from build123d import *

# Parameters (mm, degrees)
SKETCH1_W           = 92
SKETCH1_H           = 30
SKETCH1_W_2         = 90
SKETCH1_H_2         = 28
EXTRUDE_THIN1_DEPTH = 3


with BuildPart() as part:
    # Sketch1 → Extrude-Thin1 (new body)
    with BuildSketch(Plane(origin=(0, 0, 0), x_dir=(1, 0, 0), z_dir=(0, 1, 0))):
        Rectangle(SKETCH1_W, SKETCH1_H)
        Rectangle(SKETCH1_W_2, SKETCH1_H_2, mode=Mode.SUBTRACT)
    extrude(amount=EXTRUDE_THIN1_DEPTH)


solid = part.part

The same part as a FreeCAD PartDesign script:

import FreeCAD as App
import Part
import Sketcher

V = App.Vector
Q = App.Units.Quantity


def add_polygon(sketch, points):
    """Adds a closed chain of lines whose ends are joined by coincident constraints."""
    first, n = sketch.GeometryCount, len(points)
    for a, b in zip(points, points[1:] + points[:1]):
        sketch.addGeometry(Part.LineSegment(App.Vector(*a, 0), App.Vector(*b, 0)), False)
    for i in range(n):
        sketch.addConstraint(Sketcher.Constraint("Coincident", first + i, 2, first + (i + 1) % n, 1))

doc = App.newDocument("Part")
body = doc.addObject("PartDesign::Body", "Body")

sketch1 = doc.addObject("Sketcher::SketchObject", "Sketch")
body.addObject(sketch1)
sketch1.AttachmentSupport = (doc.XZ_Plane, [""])
sketch1.MapMode = "FlatFace"
add_polygon(sketch1, [(-46, -15), (-46, 15), (46, 15), (46, -15)])
add_polygon(sketch1, [(45, 14), (-45, 14), (-45, -14), (45, -14)])
sketch1.addConstraint(Sketcher.Constraint("Vertical", 0))
sketch1.addConstraint(Sketcher.Constraint("Horizontal", 1))
sketch1.addConstraint(Sketcher.Constraint("Vertical", 2))
sketch1.addConstraint(Sketcher.Constraint("Horizontal", 3))
sketch1.addConstraint(Sketcher.Constraint("Horizontal", 4))
sketch1.addConstraint(Sketcher.Constraint("Vertical", 5))
sketch1.addConstraint(Sketcher.Constraint("Horizontal", 6))
sketch1.addConstraint(Sketcher.Constraint("Vertical", 7))
sketch1.addConstraint(Sketcher.Constraint("Symmetric", 0, 2, 2, 2, -1, 1))
sketch1.addConstraint(Sketcher.Constraint("Symmetric", 4, 2, 6, 2, -1, 1))
sketch1.addConstraint(Sketcher.Constraint("DistanceX", 1, 1, 1, 2, Q("92 mm")))
sketch1.addConstraint(Sketcher.Constraint("DistanceX", 4, 2, 4, 1, Q("90 mm")))
sketch1.addConstraint(Sketcher.Constraint("DistanceY", 0, 1, 0, 2, Q("30 mm")))
sketch1.addConstraint(Sketcher.Constraint("DistanceY", 5, 2, 5, 1, Q("28 mm")))
pad1 = doc.addObject("PartDesign::Pad", "Pad")
body.addObject(pad1)
pad1.Profile = sketch1
pad1.Length = 3
pad1.Reversed = True

doc.recompute()
